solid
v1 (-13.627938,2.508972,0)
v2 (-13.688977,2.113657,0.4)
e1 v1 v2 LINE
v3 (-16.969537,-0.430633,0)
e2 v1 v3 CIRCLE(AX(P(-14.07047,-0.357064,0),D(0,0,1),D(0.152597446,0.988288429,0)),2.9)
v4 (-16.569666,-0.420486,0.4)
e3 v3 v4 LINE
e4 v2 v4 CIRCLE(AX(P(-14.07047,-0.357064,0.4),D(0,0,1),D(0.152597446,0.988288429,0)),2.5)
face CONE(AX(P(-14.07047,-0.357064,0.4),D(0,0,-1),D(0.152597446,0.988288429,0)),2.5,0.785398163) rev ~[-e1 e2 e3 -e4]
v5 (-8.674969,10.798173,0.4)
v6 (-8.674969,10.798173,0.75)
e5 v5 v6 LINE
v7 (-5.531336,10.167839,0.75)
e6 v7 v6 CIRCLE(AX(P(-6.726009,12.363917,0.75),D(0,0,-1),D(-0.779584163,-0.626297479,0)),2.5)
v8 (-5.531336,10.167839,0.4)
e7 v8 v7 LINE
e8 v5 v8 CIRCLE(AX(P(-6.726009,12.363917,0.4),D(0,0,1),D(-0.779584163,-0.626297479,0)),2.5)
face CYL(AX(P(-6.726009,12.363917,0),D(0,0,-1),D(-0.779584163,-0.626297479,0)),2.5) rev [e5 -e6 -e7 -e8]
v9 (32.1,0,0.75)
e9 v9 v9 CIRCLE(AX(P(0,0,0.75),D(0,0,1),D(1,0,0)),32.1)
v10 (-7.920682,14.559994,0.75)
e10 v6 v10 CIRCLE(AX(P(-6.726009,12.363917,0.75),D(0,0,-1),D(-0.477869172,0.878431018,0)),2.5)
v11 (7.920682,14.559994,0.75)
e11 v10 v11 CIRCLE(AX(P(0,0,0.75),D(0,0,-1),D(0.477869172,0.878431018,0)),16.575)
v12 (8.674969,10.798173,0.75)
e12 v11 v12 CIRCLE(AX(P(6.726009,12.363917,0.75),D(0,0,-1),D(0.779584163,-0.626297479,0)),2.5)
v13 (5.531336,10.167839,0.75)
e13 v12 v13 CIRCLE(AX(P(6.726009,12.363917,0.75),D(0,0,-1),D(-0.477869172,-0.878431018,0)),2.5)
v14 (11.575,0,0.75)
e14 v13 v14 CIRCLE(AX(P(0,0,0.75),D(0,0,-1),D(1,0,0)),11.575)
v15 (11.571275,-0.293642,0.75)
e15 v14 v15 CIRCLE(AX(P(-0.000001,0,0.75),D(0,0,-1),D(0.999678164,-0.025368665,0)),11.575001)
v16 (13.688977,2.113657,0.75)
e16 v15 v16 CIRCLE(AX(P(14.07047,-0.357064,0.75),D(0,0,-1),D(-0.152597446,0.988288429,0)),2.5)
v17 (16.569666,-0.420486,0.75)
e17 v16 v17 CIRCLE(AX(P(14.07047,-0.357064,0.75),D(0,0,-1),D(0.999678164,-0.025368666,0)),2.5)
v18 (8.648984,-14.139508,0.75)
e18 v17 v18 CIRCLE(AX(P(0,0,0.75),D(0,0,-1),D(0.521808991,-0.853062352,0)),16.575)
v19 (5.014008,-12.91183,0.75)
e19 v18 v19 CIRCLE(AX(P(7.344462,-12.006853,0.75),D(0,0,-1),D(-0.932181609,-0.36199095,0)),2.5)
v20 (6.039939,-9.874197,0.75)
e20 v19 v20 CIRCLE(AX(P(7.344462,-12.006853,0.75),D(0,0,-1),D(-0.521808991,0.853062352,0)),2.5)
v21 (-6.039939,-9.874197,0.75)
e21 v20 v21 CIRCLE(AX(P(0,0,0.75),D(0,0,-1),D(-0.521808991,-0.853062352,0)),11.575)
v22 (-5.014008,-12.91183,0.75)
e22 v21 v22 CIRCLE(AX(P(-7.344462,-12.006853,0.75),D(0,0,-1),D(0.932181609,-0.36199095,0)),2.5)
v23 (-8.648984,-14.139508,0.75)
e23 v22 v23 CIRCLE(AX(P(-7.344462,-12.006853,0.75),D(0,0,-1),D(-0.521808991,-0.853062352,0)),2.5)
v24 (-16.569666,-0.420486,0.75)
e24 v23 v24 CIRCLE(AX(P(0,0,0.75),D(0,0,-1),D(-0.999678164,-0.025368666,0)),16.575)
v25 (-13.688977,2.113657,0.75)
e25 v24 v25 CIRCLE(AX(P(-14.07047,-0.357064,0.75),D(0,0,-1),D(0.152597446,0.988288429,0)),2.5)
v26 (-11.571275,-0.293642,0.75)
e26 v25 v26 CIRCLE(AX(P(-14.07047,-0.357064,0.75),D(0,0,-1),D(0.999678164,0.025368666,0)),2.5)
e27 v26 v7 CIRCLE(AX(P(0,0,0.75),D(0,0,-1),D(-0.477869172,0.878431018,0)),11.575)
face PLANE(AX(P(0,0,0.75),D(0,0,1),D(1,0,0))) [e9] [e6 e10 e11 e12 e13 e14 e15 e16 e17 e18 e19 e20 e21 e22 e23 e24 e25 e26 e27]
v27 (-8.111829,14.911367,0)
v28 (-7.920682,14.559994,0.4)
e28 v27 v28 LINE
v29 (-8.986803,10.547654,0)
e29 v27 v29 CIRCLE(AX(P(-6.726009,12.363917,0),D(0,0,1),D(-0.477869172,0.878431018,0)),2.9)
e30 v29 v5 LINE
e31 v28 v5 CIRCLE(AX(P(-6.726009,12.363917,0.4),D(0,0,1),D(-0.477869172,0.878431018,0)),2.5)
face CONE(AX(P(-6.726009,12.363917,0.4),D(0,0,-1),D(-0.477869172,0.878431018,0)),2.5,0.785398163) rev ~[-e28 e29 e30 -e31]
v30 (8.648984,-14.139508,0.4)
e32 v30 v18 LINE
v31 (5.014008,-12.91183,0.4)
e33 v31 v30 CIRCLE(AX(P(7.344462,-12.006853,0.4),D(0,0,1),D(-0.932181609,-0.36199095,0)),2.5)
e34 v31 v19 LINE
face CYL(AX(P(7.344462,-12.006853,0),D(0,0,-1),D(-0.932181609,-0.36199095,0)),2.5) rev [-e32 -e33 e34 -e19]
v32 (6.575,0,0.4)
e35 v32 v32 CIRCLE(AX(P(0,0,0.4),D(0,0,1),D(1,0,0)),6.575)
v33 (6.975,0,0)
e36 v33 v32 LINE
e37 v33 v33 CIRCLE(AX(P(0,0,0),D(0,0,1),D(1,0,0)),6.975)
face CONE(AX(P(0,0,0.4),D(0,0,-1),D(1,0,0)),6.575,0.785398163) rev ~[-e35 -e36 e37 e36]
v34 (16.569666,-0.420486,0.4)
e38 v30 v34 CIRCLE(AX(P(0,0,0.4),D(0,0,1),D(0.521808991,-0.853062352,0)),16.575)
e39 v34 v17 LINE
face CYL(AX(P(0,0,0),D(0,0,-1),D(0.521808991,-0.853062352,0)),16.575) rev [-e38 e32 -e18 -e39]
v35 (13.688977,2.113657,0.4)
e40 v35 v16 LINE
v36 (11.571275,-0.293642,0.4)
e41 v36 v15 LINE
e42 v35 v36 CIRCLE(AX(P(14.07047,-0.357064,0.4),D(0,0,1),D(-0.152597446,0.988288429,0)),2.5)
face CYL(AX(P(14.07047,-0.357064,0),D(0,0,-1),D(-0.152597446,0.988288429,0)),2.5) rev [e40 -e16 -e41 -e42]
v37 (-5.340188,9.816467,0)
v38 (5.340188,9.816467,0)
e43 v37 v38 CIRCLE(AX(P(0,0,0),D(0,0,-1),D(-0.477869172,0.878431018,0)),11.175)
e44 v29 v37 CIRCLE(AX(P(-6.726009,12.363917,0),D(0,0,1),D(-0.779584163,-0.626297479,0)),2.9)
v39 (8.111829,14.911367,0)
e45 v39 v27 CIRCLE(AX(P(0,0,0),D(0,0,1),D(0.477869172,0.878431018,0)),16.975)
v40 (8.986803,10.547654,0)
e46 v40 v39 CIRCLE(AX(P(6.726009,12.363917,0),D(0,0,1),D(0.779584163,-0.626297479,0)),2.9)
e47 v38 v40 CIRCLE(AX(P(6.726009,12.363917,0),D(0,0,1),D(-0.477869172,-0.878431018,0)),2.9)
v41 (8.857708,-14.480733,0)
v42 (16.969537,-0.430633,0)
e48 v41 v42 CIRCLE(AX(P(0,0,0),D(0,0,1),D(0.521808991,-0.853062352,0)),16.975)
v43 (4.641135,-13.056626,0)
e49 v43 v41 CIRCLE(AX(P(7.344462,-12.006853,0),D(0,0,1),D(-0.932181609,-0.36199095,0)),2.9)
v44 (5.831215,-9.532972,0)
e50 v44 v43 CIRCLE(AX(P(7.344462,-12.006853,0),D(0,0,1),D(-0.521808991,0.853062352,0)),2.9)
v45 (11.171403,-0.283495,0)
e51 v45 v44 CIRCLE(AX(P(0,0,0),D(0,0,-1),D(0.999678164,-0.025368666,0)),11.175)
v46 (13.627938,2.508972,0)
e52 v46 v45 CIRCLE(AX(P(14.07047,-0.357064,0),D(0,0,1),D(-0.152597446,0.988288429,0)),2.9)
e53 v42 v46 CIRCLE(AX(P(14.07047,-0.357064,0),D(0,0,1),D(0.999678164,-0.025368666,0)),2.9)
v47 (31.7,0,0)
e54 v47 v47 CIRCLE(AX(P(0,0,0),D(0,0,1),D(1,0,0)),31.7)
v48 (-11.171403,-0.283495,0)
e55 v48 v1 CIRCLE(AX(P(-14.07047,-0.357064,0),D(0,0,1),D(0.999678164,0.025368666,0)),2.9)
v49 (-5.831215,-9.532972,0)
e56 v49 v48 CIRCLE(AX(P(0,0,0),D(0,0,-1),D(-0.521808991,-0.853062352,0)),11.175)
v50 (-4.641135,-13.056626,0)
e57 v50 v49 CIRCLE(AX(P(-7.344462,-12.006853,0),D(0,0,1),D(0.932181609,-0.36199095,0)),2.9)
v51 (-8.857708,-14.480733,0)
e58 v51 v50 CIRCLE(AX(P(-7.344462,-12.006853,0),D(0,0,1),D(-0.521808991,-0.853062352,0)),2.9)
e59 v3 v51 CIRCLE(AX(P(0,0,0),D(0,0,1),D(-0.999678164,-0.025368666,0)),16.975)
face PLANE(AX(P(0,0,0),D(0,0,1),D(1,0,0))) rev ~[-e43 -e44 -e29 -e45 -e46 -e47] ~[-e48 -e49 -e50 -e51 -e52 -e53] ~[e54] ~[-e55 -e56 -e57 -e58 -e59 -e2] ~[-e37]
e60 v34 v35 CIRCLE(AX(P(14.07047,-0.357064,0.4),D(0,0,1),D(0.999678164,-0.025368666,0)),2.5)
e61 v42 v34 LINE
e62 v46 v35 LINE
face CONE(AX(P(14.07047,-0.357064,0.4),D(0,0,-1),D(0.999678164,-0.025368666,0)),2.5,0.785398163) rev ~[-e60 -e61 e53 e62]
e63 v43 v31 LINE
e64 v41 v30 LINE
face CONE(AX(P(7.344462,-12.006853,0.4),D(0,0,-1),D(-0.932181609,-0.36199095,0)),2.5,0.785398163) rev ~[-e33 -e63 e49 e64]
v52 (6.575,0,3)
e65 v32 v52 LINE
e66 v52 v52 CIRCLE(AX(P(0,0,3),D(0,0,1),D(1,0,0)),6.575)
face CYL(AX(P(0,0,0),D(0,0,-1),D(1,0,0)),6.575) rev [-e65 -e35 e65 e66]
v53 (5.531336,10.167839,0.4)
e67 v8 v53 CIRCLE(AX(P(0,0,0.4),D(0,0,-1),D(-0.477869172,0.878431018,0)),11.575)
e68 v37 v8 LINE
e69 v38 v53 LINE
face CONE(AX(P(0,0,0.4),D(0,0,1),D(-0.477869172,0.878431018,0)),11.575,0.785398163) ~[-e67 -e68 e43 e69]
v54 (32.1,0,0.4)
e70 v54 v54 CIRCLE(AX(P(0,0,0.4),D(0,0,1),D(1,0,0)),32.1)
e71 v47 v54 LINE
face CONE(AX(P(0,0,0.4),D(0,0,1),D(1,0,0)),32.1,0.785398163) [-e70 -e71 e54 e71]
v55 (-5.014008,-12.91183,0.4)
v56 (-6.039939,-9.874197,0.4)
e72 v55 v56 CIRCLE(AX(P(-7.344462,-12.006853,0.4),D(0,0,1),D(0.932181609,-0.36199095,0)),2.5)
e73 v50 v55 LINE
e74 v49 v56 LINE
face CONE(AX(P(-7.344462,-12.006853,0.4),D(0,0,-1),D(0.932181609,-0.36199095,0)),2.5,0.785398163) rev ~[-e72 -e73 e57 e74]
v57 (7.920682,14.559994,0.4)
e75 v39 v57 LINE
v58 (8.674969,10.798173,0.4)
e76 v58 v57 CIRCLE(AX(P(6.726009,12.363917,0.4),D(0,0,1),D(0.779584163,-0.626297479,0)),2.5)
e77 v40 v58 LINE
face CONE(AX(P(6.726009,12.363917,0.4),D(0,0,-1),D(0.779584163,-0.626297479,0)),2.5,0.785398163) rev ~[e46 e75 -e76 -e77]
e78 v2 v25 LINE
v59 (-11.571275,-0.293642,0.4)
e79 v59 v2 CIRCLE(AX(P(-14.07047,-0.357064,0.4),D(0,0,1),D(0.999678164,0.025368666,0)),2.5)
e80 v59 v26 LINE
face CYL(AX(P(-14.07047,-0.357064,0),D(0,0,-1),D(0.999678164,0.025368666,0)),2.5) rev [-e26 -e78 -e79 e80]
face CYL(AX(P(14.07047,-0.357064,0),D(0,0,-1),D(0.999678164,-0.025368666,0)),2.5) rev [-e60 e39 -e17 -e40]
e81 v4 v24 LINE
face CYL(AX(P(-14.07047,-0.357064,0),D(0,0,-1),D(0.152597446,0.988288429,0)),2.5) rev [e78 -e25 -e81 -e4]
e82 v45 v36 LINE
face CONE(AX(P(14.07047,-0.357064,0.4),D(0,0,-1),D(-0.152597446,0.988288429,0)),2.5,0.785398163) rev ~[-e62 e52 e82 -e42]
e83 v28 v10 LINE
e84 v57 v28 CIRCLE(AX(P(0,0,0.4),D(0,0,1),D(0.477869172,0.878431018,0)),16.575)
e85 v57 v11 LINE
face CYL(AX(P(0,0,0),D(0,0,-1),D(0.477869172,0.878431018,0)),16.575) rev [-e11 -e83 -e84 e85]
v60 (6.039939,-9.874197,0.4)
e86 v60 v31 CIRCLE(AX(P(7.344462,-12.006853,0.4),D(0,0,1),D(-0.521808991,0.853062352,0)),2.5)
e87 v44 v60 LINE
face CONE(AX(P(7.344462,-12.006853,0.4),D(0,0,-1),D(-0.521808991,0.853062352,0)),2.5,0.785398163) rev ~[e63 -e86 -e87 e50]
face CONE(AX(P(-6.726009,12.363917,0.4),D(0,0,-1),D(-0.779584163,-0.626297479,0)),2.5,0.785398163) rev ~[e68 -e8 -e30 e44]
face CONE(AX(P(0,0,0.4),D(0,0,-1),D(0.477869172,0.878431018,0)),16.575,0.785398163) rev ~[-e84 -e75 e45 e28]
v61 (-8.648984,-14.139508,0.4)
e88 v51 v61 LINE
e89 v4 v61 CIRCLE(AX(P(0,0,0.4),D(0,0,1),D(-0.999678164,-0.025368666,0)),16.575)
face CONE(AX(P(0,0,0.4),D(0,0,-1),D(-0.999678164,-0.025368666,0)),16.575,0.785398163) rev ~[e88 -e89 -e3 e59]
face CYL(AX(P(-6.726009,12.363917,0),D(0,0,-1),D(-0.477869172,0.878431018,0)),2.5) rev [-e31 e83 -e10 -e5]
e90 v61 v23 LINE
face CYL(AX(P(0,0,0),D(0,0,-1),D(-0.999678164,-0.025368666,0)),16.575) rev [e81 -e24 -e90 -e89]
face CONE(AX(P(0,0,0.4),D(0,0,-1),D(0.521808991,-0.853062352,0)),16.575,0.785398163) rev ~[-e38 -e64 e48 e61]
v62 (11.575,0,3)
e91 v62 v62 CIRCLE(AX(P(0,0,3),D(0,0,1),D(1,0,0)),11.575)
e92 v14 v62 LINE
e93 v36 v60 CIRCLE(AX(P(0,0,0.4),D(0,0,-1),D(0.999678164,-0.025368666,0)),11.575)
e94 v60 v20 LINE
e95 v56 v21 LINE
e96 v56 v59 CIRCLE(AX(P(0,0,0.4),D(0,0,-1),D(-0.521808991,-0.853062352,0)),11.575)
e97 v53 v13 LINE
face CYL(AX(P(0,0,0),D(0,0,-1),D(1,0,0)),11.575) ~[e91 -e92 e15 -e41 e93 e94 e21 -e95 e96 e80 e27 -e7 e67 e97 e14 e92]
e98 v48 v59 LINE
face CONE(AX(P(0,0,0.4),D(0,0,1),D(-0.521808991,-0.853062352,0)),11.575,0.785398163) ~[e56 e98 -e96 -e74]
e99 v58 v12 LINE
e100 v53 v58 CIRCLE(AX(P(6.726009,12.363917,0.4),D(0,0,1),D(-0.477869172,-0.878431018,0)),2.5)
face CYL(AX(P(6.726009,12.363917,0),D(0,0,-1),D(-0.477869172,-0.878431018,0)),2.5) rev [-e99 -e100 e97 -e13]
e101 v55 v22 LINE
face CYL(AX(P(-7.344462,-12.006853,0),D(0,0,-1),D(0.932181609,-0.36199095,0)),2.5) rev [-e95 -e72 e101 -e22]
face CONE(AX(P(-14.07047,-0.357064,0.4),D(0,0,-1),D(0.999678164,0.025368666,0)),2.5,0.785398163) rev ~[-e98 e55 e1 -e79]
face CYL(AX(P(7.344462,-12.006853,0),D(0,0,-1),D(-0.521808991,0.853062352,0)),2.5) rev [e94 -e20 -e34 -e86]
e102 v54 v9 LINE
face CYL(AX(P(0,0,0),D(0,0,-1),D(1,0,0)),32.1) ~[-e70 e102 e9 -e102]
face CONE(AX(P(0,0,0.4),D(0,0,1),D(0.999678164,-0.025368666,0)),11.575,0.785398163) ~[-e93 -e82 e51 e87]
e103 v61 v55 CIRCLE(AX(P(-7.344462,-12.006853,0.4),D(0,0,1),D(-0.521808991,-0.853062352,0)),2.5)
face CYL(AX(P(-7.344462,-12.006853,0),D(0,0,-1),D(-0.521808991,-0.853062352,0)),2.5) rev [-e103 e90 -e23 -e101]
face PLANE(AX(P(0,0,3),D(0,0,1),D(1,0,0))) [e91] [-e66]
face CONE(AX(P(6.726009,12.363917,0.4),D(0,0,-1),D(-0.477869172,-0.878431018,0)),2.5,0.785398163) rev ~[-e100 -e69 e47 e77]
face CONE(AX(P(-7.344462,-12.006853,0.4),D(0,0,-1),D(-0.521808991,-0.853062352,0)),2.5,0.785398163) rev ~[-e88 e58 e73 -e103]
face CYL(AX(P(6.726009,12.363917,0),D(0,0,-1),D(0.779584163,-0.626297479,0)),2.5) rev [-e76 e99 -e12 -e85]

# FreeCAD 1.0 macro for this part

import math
import FreeCAD as App
import Part
import Sketcher

V = App.Vector


def edges_at(feature, points):
    """Names of the edges that pass closest to the given points."""
    edges = feature.Shape.Edges
    near = lambda p: min(range(len(edges)), key=lambda i: edges[i].distToShape(Part.Vertex(*p))[0])
    return sorted({f"Edge{near(p) + 1}" for p in points})

doc = App.newDocument("Part")
body = doc.addObject("PartDesign::Body", "Body")

# Sketch on XY plane
sketch1 = doc.addObject("Sketcher::SketchObject", "Sketch")
body.addObject(sketch1)
sketch1.AttachmentSupport = (doc.XY_Plane, [""])
sketch1.MapMode = "FlatFace"
sketch1.addGeometry([
    Part.Circle(V(0, 0, 0), V(0, 0, 1), 32),
    Part.Circle(V(0, 0, 0), V(0, 0, 1), 7),
], False)
sketch1.addConstraint([
    Sketcher.Constraint("Coincident", 0, 3, -1, 1),
    Sketcher.Constraint("Coincident", 1, 3, -1, 1),
    Sketcher.Constraint("Diameter", 0, 64.2),
    Sketcher.Constraint("Diameter", 1, 13.15),
])
pad1 = doc.addObject("PartDesign::Pad", "Pad")
body.addObject(pad1)
pad1.Profile = sketch1
pad1.Length = 0.75

# Sketch on XY plane
sketch2 = doc.addObject("Sketcher::SketchObject", "Sketch001")
body.addObject(sketch2)
sketch2.AttachmentSupport = (doc.XY_Plane, [""])
sketch2.MapMode = "FlatFace"
sketch2.addGeometry([
    Part.ArcOfCircle(Part.Circle(V(0, 0, 0), V(0, 0, 1), 11.58), math.radians(-1.45), math.radians(0)),  # 0
    Part.ArcOfCircle(Part.Circle(V(0, 0, 0), V(0, 0, 1), 11.57), math.radians(0), math.radians(61)),  # 1
    Part.ArcOfCircle(Part.Circle(V(6.73, 12.36, 0), V(0, 0, 1), 2.5), math.radians(-119), math.radians(-39)),  # 2
    Part.ArcOfCircle(Part.Circle(V(6.73, 12.36, 0), V(0, 0, 1), 2.5), math.radians(-39), math.radians(61)),  # 3
    Part.ArcOfCircle(Part.Circle(V(0, 0, 0), V(0, 0, 1), 16.57), math.radians(61), math.radians(119)),  # 4
    Part.ArcOfCircle(Part.Circle(V(-6.73, 12.36, 0), V(0, 0, 1), 2.5), math.radians(119), math.radians(219)),  # 5
    Part.ArcOfCircle(Part.Circle(V(-6.73, 12.36, 0), V(0, 0, 1), 2.5), math.radians(-141), math.radians(-61)),  # 6
    Part.ArcOfCircle(Part.Circle(V(0, 0, 0), V(0, 0, 1), 11.57), math.radians(119), math.radians(181)),  # 7
    Part.ArcOfCircle(Part.Circle(V(-14.07, -0.36, 0), V(0, 0, 1), 2.5), math.radians(1), math.radians(81)),  # 8
    Part.ArcOfCircle(Part.Circle(V(-14.07, -0.36, 0), V(0, 0, 1), 2.5), math.radians(81), math.radians(181)),  # 9
    Part.ArcOfCircle(Part.Circle(V(0, 0, 0), V(0, 0, 1), 16.57), math.radians(-179), math.radians(-121)),  # 10
    Part.ArcOfCircle(Part.Circle(V(-7.34, -12.01, 0), V(0, 0, 1), 2.5), math.radians(-121), math.radians(-21)),  # 11
    Part.ArcOfCircle(Part.Circle(V(-7.34, -12.01, 0), V(0, 0, 1), 2.5), math.radians(-21), math.radians(59)),  # 12
    Part.ArcOfCircle(Part.Circle(V(0, 0, 0), V(0, 0, 1), 11.57), math.radians(-121), math.radians(-59)),  # 13
    Part.ArcOfCircle(Part.Circle(V(7.34, -12.01, 0), V(0, 0, 1), 2.5), math.radians(121), math.radians(201)),  # 14
    Part.ArcOfCircle(Part.Circle(V(7.34, -12.01, 0), V(0, 0, 1), 2.5), math.radians(-159), math.radians(-59)),  # 15
    Part.ArcOfCircle(Part.Circle(V(0, 0, 0), V(0, 0, 1), 16.57), math.radians(-59), math.radians(-1)),  # 16
    Part.ArcOfCircle(Part.Circle(V(14.07, -0.36, 0), V(0, 0, 1), 2.5), math.radians(-1), math.radians(99)),  # 17
    Part.ArcOfCircle(Part.Circle(V(14.07, -0.36, 0), V(0, 0, 1), 2.5), math.radians(99), math.radians(179)),  # 18
], False)
sketch2.addConstraint([
    Sketcher.Constraint("Tangent", 0, 2, 1, 1),
    Sketcher.Constraint("Tangent", 1, 2, 2, 1),
    Sketcher.Constraint("Tangent", 2, 2, 3, 1),
    Sketcher.Constraint("Tangent", 3, 2, 4, 1),
    Sketcher.Constraint("Tangent", 4, 2, 5, 1),
    Sketcher.Constraint("Tangent", 5, 2, 6, 1),
    Sketcher.Constraint("Tangent", 6, 2, 7, 1),
    Sketcher.Constraint("Tangent", 7, 2, 8, 1),
    Sketcher.Constraint("Tangent", 8, 2, 9, 1),
    Sketcher.Constraint("Tangent", 9, 2, 10, 1),
    Sketcher.Constraint("Tangent", 10, 2, 11, 1),
    Sketcher.Constraint("Tangent", 11, 2, 12, 1),
    Sketcher.Constraint("Tangent", 12, 2, 13, 1),
    Sketcher.Constraint("Tangent", 13, 2, 14, 1),
    Sketcher.Constraint("Tangent", 14, 2, 15, 1),
    Sketcher.Constraint("Tangent", 15, 2, 16, 1),
    Sketcher.Constraint("Tangent", 16, 2, 17, 1),
    Sketcher.Constraint("Tangent", 17, 2, 18, 1),
    Sketcher.Constraint("Tangent", 18, 2, 0, 1),
    Sketcher.Constraint("Coincident", 0, 3, -1, 1),
    Sketcher.Constraint("Coincident", 4, 3, -1, 1),
    Sketcher.Constraint("Coincident", 7, 3, -1, 1),
    Sketcher.Constraint("Coincident", 10, 3, -1, 1),
    Sketcher.Constraint("Coincident", 13, 3, -1, 1),
    Sketcher.Constraint("Coincident", 16, 3, -1, 1),
    Sketcher.Constraint("Equal", 0, 1),
    Sketcher.Constraint("Equal", 2, 3),
    Sketcher.Constraint("Equal", 3, 5),
    Sketcher.Constraint("Equal", 5, 6),
    Sketcher.Constraint("Equal", 6, 8),
    Sketcher.Constraint("Equal", 8, 9),
    Sketcher.Constraint("Equal", 9, 11),
    Sketcher.Constraint("Equal", 11, 12),
    Sketcher.Constraint("Equal", 12, 14),
    Sketcher.Constraint("Equal", 14, 15),
    Sketcher.Constraint("Equal", 15, 17),
    Sketcher.Constraint("Symmetric", 2, 2, 5, 2, -2),
    Sketcher.Constraint("Symmetric", 11, 2, 14, 2, -2),
    Sketcher.Constraint("Symmetric", 8, 2, 17, 2, -2),
    Sketcher.Constraint("PointOnObject", 0, 2, -1),
    Sketcher.Constraint("Radius", 2, 2.5),
    Sketcher.Constraint("Radius", 0, 11.575001),
    Sketcher.Constraint("DistanceX", 2, 2, 17, 3, 5.395501),
    Sketcher.Constraint("DistanceX", 8, 2, 7, 2, 2.117702),
    Sketcher.Constraint("DistanceY", 7, 2, 8, 2, 2.407299),
    Sketcher.Constraint("DistanceX", -1, 1, 2, 3, 6.726009),
    Sketcher.Constraint("DistanceX", 11, 3, -1, 1, 7.344462),
    Sketcher.Constraint("DistanceY", 11, 2, -1, 1, 12.91183),
])
pocket1 = doc.addObject("PartDesign::Pocket", "Pocket")
body.addObject(pocket1)
pocket1.Profile = sketch2
pocket1.Length = 25
pocket1.Reversed = True

# Sketch on XY plane
sketch3 = doc.addObject("Sketcher::SketchObject", "Sketch002")
body.addObject(sketch3)
sketch3.AttachmentSupport = (doc.XY_Plane, [""])
sketch3.MapMode = "FlatFace"
sketch3.addGeometry([
    Part.Circle(V(0, 0, 0), V(0, 0, 1), 12),
    Part.Circle(V(0, 0, 0), V(0, 0, 1), 7),
], False)
sketch3.addConstraint([
    Sketcher.Constraint("Coincident", 0, 3, -1, 1),
    Sketcher.Constraint("Coincident", 1, 3, -1, 1),
    Sketcher.Constraint("Diameter", 0, 23.15),
    Sketcher.Constraint("Diameter", 1, 13.15),
])
pad2 = doc.addObject("PartDesign::Pad", "Pad001")
body.addObject(pad2)
pad2.Profile = sketch3
pad2.Length = 3
doc.recompute()

chamfer = doc.addObject("PartDesign::Chamfer", "Chamfer")
body.addObject(chamfer)
chamfer.Base = (pad2, edges_at(pad2, [
    (-32.1, 0, 0),
    (9.177, 12.855, 0),
    (0, 11.575, 0),
    (-9.177, 12.855, 0),
    (0, 16.575, 0),
    (-15.722, 1.52, 0),
    (-10.024, -5.787, 0),
    (-6.545, -14.375, 0),
    (-14.354, -8.287, 0),
    (6.545, -14.375, 0),
    (10.024, -5.787, 0),
    (15.722, 1.52, 0),
    (14.354, -8.287, 0),
    (-6.575, 0, 0),
]))
chamfer.Size = 0.4

doc.recompute()
